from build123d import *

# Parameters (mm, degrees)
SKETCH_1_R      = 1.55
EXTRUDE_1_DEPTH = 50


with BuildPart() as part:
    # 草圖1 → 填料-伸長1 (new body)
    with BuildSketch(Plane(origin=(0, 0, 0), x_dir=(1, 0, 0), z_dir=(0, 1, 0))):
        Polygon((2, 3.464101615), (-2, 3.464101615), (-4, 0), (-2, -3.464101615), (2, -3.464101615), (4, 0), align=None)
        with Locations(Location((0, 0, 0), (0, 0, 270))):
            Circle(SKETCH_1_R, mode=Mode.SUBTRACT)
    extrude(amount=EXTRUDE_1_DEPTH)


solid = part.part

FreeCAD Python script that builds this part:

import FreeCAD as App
import Part
import Sketcher
from FreeCAD import Vector
Q = App.Units.Quantity


def add_polygon(sketch, points):
    """Adds a closed chain of lines whose ends are joined by coincident constraints."""
    first, n = sketch.GeometryCount, len(points)
    for a, b in zip(points, points[1:] + points[:1]):
        sketch.addGeometry(Part.LineSegment(App.Vector(*a, 0), App.Vector(*b, 0)), False)
    for i in range(n):
        sketch.addConstraint(Sketcher.Constraint("Coincident", first + i, 2, first + (i + 1) % n, 1))

doc = App.newDocument("Part")
body = doc.addObject("PartDesign::Body", "Body")

# Sketch on XZ plane
sketch1 = body.newObject("Sketcher::SketchObject", "Sketch")
sketch1.AttachmentSupport = (doc.getObject("XZ_Plane"), [""])
sketch1.MapMode = "FlatFace"
add_polygon(sketch1, [(2, -3.5), (-2, -3.5), (-4, 0), (-2, 3.5), (2, 3.5), (4, 0)])  # lines 0-5
sketch1.addGeometry(Part.Circle(Vector(0, 0, 0), Vector(0, 0, 1), 1.6), False)  # 6
sketch1.addConstraint([
    Sketcher.Constraint("Horizontal", 0),
    Sketcher.Constraint("Horizontal", 3),
    Sketcher.Constraint("Coincident", 6, 3, -1, 1),
    Sketcher.Constraint("Symmetric", 0, 2, 3, 2, -1, 1),
    Sketcher.Constraint("Symmetric", 1, 2, 4, 2, -1, 1),
    Sketcher.Constraint("PointOnObject", 1, 2, -1),
    Sketcher.Constraint("Parallel", 2, 5),
    Sketcher.Constraint("Vertical", 0, 2, 2, 2),
    Sketcher.Constraint("Diameter", 6, Q("3.1 mm")),
    Sketcher.Constraint("DistanceX", 0, 2, 0, 1, Q("4 mm")),
    Sketcher.Constraint("Angle", 1, Q("120 deg")),
    Sketcher.Constraint("Distance", 1, Q("4 mm")),
])
pad1 = body.newObject("PartDesign::Pad", "Pad")
pad1.Profile = sketch1
pad1.Length = 50
pad1.Reversed = True

doc.recompute()
